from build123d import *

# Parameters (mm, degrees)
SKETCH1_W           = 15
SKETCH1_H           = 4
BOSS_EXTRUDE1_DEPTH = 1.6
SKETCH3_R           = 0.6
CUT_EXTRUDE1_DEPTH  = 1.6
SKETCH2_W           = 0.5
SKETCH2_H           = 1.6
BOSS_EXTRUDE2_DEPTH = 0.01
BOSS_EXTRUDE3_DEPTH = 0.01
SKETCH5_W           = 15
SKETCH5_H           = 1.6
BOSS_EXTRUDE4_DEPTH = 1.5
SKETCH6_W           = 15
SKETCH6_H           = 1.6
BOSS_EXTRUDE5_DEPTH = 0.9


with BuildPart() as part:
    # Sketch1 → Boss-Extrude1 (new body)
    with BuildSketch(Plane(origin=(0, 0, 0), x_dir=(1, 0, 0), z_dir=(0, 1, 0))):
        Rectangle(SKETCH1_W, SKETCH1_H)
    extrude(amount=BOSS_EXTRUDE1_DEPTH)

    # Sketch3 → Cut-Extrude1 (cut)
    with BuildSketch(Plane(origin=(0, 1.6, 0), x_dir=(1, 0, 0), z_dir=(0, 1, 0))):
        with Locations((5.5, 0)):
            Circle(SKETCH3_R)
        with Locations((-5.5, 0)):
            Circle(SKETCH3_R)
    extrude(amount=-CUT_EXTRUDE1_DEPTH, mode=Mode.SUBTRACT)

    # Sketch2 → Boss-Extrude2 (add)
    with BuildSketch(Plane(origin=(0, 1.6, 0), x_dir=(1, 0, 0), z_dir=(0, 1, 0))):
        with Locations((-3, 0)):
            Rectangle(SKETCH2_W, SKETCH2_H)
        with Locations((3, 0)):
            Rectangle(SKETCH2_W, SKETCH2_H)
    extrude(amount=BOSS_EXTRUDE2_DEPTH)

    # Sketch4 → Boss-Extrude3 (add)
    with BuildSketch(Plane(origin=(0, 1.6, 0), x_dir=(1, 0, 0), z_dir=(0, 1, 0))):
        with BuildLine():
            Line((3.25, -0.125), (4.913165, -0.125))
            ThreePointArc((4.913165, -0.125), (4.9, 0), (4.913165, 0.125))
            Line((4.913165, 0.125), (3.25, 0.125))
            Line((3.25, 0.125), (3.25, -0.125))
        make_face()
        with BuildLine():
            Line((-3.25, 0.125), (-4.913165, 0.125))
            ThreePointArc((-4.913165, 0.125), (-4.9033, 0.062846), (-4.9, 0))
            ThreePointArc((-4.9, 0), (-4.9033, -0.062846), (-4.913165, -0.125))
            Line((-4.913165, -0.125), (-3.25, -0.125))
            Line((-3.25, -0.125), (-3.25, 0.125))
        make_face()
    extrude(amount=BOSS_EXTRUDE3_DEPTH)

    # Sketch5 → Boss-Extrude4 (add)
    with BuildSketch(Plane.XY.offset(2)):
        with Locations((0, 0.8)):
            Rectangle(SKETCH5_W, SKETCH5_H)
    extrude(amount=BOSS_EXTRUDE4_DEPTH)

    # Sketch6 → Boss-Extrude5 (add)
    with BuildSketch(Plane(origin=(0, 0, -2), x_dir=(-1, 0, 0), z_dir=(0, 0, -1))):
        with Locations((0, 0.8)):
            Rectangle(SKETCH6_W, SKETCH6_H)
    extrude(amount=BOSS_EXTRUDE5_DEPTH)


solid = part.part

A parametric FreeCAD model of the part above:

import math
import FreeCAD as App
import Part
import Sketcher
from FreeCAD import Vector
Q = App.Units.Quantity

doc = App.newDocument("Part")
body = doc.addObject("PartDesign::Body", "Body")

# Sketch on XZ plane
sketch1 = body.newObject("Sketcher::SketchObject", "Sketch")
sketch1.AttachmentSupport = (doc.getObject("XZ_Plane"), [""])
sketch1.MapMode = "FlatFace"
sketch1.addGeometry([
    Part.LineSegment(Vector(-7.5, -2, 0), Vector(-7.5, 2, 0)),
    Part.LineSegment(Vector(-7.5, 2, 0), Vector(7.5, 2, 0)),
    Part.LineSegment(Vector(7.5, 2, 0), Vector(7.5, -2, 0)),
    Part.LineSegment(Vector(7.5, -2, 0), Vector(-7.5, -2, 0)),
], False)
sketch1.addConstraint([
    Sketcher.Constraint("Coincident", 0, 2, 1, 1),
    Sketcher.Constraint("Coincident", 1, 2, 2, 1),
    Sketcher.Constraint("Coincident", 2, 2, 3, 1),
    Sketcher.Constraint("Coincident", 3, 2, 0, 1),
    Sketcher.Constraint("Vertical", 0),
    Sketcher.Constraint("Horizontal", 1),
    Sketcher.Constraint("Vertical", 2),
    Sketcher.Constraint("Horizontal", 3),
    Sketcher.Constraint("Symmetric", 0, 2, 2, 2, -1, 1),
    Sketcher.Constraint("DistanceX", 1, 1, 1, 2, Q("15 mm")),
    Sketcher.Constraint("DistanceY", 0, 1, 0, 2, Q("4 mm")),
])
pad1 = body.newObject("PartDesign::Pad", "Pad")
pad1.Profile = sketch1
pad1.Length = 1.6
pad1.Reversed = True

# Sketch on XZ plane
sketch2 = body.newObject("Sketcher::SketchObject", "Sketch001")
sketch2.AttachmentSupport = (doc.getObject("XZ_Plane"), [""])
sketch2.MapMode = "FlatFace"
sketch2.AttachmentOffset = App.Placement(Vector(0, 0, -1.6), App.Rotation())
sketch2.addGeometry([
    Part.Circle(Vector(5.5, 0, 0), Vector(0, 0, 1), 0.6),
    Part.Circle(Vector(-5.5, 0, 0), Vector(0, 0, 1), 0.6),
], False)
sketch2.addConstraint([
    Sketcher.Constraint("Equal", 0, 1),
    Sketcher.Constraint("Symmetric", 0, 3, 1, 3, -1, 1),
    Sketcher.Constraint("PointOnObject", 0, 3, -1),
    Sketcher.Constraint("Diameter", 0, Q("1.2 mm")),
    Sketcher.Constraint("DistanceX", 1, 3, 0, 3, Q("11 mm")),
])
pocket1 = body.newObject("PartDesign::Pocket", "Pocket")
pocket1.Profile = sketch2
pocket1.Length = 1.6
pocket1.Reversed = True

# Sketch on XZ plane
sketch3 = body.newObject("Sketcher::SketchObject", "Sketch002")
sketch3.AttachmentSupport = (doc.getObject("XZ_Plane"), [""])
sketch3.MapMode = "FlatFace"
sketch3.AttachmentOffset = App.Placement(Vector(0, 0, -1.6), App.Rotation())
sketch3.addGeometry([
    Part.LineSegment(Vector(-3.2, -0.8, 0), Vector(-3.2, 0.8, 0)),  # 0
    Part.LineSegment(Vector(-3.2, 0.8, 0), Vector(-2.8, 0.8, 0)),  # 1
    Part.LineSegment(Vector(-2.8, 0.8, 0), Vector(-2.8, -0.8, 0)),  # 2
    Part.LineSegment(Vector(-2.8, -0.8, 0), Vector(-3.2, -0.8, 0)),  # 3
    Part.LineSegment(Vector(2.8, -0.8, 0), Vector(2.8, 0.8, 0)),  # 4
    Part.LineSegment(Vector(2.8, 0.8, 0), Vector(3.2, 0.8, 0)),  # 5
    Part.LineSegment(Vector(3.2, 0.8, 0), Vector(3.2, -0.8, 0)),  # 6
    Part.LineSegment(Vector(3.2, -0.8, 0), Vector(2.8, -0.8, 0)),  # 7
], False)
sketch3.addConstraint([
    Sketcher.Constraint("Coincident", 0, 2, 1, 1),
    Sketcher.Constraint("Coincident", 1, 2, 2, 1),
    Sketcher.Constraint("Coincident", 2, 2, 3, 1),
    Sketcher.Constraint("Coincident", 3, 2, 0, 1),
    Sketcher.Constraint("Coincident", 4, 2, 5, 1),
    Sketcher.Constraint("Coincident", 5, 2, 6, 1),
    Sketcher.Constraint("Coincident", 6, 2, 7, 1),
    Sketcher.Constraint("Coincident", 7, 2, 4, 1),
    Sketcher.Constraint("Vertical", 0),
    Sketcher.Constraint("Horizontal", 1),
    Sketcher.Constraint("Vertical", 2),
    Sketcher.Constraint("Horizontal", 3),
    Sketcher.Constraint("Vertical", 4),
    Sketcher.Constraint("Horizontal", 5),
    Sketcher.Constraint("Vertical", 6),
    Sketcher.Constraint("Horizontal", 7),
    Sketcher.Constraint("Symmetric", 2, 2, 4, 2, -1, 1),
    Sketcher.Constraint("Symmetric", 0, 2, 6, 2, -1, 1),
    Sketcher.Constraint("Horizontal", 1, 2, 4, 2),
    Sketcher.Constraint("DistanceX", 1, 1, 1, 2, Q("0.5 mm")),
    Sketcher.Constraint("DistanceY", 0, 1, 0, 2, Q("1.6 mm")),
    Sketcher.Constraint("DistanceX", 0, 2, 4, 2, Q("6 mm")),
])
pad2 = body.newObject("PartDesign::Pad", "Pad001")
pad2.Profile = sketch3
pad2.Length = 0.01
pad2.Reversed = True

# Sketch on XZ plane
sketch4 = body.newObject("Sketcher::SketchObject", "Sketch003")
sketch4.AttachmentSupport = (doc.getObject("XZ_Plane"), [""])
sketch4.MapMode = "FlatFace"
sketch4.AttachmentOffset = App.Placement(Vector(0, 0, -1.6), App.Rotation())
sketch4.addGeometry([
    Part.LineSegment(Vector(3.25, 0.12, 0), Vector(4.91, 0.12, 0)),  # 0
    Part.ArcOfCircle(Part.Circle(Vector(5.5, 0, 0), Vector(0, 0, 1), 0.6), math.radians(168), math.radians(192)),  # 1
    Part.LineSegment(Vector(4.91, -0.12, 0), Vector(3.25, -0.12, 0)),  # 2
    Part.LineSegment(Vector(3.25, -0.12, 0), Vector(3.25, 0.12, 0)),  # 3
    Part.LineSegment(Vector(-3.25, -0.12, 0), Vector(-4.91, -0.12, 0)),  # 4
    Part.ArcOfCircle(Part.Circle(Vector(-5.5, 0, 0), Vector(0, 0, 1), 0.6), math.radians(-12.03), math.radians(0)),  # 5
    Part.ArcOfCircle(Part.Circle(Vector(-5.5, 0, 0), Vector(0, 0, 1), 0.6), math.radians(0), math.radians(12.03)),  # 6
    Part.LineSegment(Vector(-4.91, 0.12, 0), Vector(-3.25, 0.12, 0)),  # 7
    Part.LineSegment(Vector(-3.25, 0.12, 0), Vector(-3.25, -0.12, 0)),  # 8
], False)
sketch4.addConstraint([
    Sketcher.Constraint("Coincident", 0, 2, 1, 1),
    Sketcher.Constraint("Coincident", 1, 2, 2, 1),
    Sketcher.Constraint("Coincident", 2, 2, 3, 1),
    Sketcher.Constraint("Coincident", 3, 2, 0, 1),
    Sketcher.Constraint("Coincident", 4, 2, 5, 1),
    Sketcher.Constraint("Coincident", 5, 2, 6, 1),
    Sketcher.Constraint("Coincident", 6, 2, 7, 1),
    Sketcher.Constraint("Coincident", 7, 2, 8, 1),
    Sketcher.Constraint("Coincident", 8, 2, 4, 1),
    Sketcher.Constraint("Horizontal", 0),
    Sketcher.Constraint("Horizontal", 2),
    Sketcher.Constraint("Vertical", 3),
    Sketcher.Constraint("Horizontal", 4),
    Sketcher.Constraint("Horizontal", 7),
    Sketcher.Constraint("Vertical", 8),
    Sketcher.Constraint("Equal", 5, 6),
    Sketcher.Constraint("Symmetric", 0, 2, 4, 2, -1, 1),
    Sketcher.Constraint("Symmetric", 1, 2, 6, 2, -1, 1),
    Sketcher.Constraint("Symmetric", 1, 2, 4, 2, -2),
    Sketcher.Constraint("PointOnObject", 5, 2, -1),
    Sketcher.Constraint("Equal", 2, 4),
    Sketcher.Constraint("DistanceY", 3, 1, 3, 2, Q("0.25 mm")),
    Sketcher.Constraint("DistanceX", 5, 2, -1, 1, Q("4.9 mm")),
    Sketcher.Constraint("DistanceX", -1, 1, 2, 2, Q("3.25 mm")),
    Sketcher.Constraint("Radius", 1, Q("0.600012 mm")),
    Sketcher.Constraint("Radius", 5, Q("0.599947 mm")),
    Sketcher.Constraint("DistanceX", 0, 1, 0, 2, Q("1.663165 mm")),
])
pad3 = body.newObject("PartDesign::Pad", "Pad002")
pad3.Profile = sketch4
pad3.Length = 0.01
pad3.Reversed = True

# Sketch on XY plane
sketch5 = body.newObject("Sketcher::SketchObject", "Sketch004")
sketch5.AttachmentSupport = (doc.getObject("XY_Plane"), [""])
sketch5.MapMode = "FlatFace"
sketch5.AttachmentOffset = App.Placement(Vector(0, 0, 2), App.Rotation())
sketch5.addGeometry([
    Part.LineSegment(Vector(-7.5, 1.6, 0), Vector(-7.5, 0, 0)),
    Part.LineSegment(Vector(-7.5, 0, 0), Vector(7.5, 0, 0)),
    Part.LineSegment(Vector(7.5, 0, 0), Vector(7.5, 1.6, 0)),
    Part.LineSegment(Vector(7.5, 1.6, 0), Vector(-7.5, 1.6, 0)),
], False)
sketch5.addConstraint([
    Sketcher.Constraint("Coincident", 0, 2, 1, 1),
    Sketcher.Constraint("Coincident", 1, 2, 2, 1),
    Sketcher.Constraint("Coincident", 2, 2, 3, 1),
    Sketcher.Constraint("Coincident", 3, 2, 0, 1),
    Sketcher.Constraint("Vertical", 0),
    Sketcher.Constraint("Horizontal", 1),
    Sketcher.Constraint("Vertical", 2),
    Sketcher.Constraint("Horizontal", 3),
    Sketcher.Constraint("Symmetric", 0, 2, 1, 2, -1, 1),
    Sketcher.Constraint("DistanceX", 1, 1, 1, 2, Q("15 mm")),
    Sketcher.Constraint("DistanceY", 0, 2, 0, 1, Q("1.6 mm")),
])
pad4 = body.newObject("PartDesign::Pad", "Pad003")
pad4.Profile = sketch5
pad4.Length = 1.5

# Sketch on XY plane
sketch6 = body.newObject("Sketcher::SketchObject", "Sketch005")
sketch6.AttachmentSupport = (doc.getObject("XY_Plane"), [""])
sketch6.MapMode = "FlatFace"
sketch6.AttachmentOffset = App.Placement(Vector(0, 0, -2), App.Rotation())
sketch6.addGeometry([
    Part.LineSegment(Vector(7.5, 1.6, 0), Vector(7.5, 0, 0)),
    Part.LineSegment(Vector(7.5, 0, 0), Vector(-7.5, 0, 0)),
    Part.LineSegment(Vector(-7.5, 0, 0), Vector(-7.5, 1.6, 0)),
    Part.LineSegment(Vector(-7.5, 1.6, 0), Vector(7.5, 1.6, 0)),
], False)
sketch6.addConstraint([
    Sketcher.Constraint("Coincident", 0, 2, 1, 1),
    Sketcher.Constraint("Coincident", 1, 2, 2, 1),
    Sketcher.Constraint("Coincident", 2, 2, 3, 1),
    Sketcher.Constraint("Coincident", 3, 2, 0, 1),
    Sketcher.Constraint("Vertical", 0),
    Sketcher.Constraint("Horizontal", 1),
    Sketcher.Constraint("Vertical", 2),
    Sketcher.Constraint("Horizontal", 3),
    Sketcher.Constraint("Symmetric", 0, 2, 1, 2, -1, 1),
    Sketcher.Constraint("DistanceX", 1, 2, 1, 1, Q("15 mm")),
    Sketcher.Constraint("DistanceY", 0, 2, 0, 1, Q("1.6 mm")),
])
pad5 = body.newObject("PartDesign::Pad", "Pad004")
pad5.Profile = sketch6
pad5.Length = 0.9
pad5.Reversed = True

doc.recompute()
